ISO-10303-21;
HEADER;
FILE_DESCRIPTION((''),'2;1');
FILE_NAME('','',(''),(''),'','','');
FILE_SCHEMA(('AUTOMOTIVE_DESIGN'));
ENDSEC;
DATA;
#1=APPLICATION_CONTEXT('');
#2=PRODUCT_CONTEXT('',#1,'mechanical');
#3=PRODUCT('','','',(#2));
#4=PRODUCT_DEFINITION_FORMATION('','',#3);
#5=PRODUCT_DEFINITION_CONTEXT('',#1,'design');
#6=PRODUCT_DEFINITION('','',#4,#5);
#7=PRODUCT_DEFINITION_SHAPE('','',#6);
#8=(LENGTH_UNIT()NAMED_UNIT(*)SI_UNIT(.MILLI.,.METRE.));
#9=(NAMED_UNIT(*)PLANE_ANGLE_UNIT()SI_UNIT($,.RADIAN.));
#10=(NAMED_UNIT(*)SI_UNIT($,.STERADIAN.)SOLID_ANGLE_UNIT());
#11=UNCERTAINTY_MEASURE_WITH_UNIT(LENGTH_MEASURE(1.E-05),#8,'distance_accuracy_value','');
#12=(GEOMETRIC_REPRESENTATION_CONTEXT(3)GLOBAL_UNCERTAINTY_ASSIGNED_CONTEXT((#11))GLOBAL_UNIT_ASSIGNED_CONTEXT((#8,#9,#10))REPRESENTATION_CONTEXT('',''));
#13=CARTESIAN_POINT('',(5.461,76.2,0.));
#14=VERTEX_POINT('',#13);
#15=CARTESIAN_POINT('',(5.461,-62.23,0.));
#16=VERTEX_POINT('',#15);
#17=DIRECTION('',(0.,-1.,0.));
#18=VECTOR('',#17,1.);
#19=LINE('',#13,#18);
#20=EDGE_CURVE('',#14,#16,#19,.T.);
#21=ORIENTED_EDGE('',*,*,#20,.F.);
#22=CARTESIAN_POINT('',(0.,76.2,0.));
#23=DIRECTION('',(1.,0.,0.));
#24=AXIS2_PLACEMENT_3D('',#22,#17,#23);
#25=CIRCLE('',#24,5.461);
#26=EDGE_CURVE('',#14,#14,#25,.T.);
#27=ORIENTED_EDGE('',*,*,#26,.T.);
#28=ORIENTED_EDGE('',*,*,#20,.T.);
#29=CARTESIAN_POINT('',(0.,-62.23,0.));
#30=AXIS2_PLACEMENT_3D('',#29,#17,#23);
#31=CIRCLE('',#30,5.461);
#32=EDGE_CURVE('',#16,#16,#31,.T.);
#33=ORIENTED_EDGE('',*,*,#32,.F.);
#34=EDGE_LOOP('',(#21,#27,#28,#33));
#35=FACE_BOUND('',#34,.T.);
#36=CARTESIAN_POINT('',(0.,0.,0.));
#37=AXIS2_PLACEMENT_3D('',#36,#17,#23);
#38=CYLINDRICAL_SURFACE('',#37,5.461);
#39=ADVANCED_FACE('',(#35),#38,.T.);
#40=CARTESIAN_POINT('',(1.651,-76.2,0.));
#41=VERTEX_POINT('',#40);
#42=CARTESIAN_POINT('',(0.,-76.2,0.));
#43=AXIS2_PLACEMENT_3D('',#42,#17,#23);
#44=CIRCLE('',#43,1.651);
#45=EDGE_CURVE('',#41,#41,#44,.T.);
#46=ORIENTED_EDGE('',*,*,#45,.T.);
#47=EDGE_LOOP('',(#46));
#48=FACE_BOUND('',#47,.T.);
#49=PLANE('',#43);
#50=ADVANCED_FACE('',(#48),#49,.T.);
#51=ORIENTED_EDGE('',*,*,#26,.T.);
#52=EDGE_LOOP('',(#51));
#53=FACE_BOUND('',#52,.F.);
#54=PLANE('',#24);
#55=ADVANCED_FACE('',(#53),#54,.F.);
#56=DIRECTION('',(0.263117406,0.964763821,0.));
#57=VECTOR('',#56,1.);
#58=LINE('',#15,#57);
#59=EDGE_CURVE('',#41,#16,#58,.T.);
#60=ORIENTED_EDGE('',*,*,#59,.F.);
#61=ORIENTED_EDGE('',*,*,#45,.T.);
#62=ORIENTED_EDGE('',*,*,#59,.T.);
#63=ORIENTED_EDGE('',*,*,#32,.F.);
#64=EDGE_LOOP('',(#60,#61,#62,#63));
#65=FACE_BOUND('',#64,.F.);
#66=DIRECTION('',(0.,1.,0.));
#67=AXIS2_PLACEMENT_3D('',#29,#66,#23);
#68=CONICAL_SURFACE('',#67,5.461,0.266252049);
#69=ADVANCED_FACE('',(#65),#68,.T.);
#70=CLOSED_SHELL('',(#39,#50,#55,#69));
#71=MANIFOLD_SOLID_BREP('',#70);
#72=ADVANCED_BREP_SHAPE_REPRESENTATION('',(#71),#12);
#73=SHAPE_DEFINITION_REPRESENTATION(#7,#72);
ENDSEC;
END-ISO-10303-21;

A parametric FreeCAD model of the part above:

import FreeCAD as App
import Part
import Sketcher

V = App.Vector
Q = App.Units.Quantity


def edges_at(feature, points):
    """Names of the edges that pass closest to the given points."""
    edges = feature.Shape.Edges
    near = lambda p: min(range(len(edges)), key=lambda i: edges[i].distToShape(Part.Vertex(*p))[0])
    return sorted({f"Edge{near(p) + 1}" for p in points})

doc = App.newDocument("Part")
params = doc.addObject("Spreadsheet::Sheet", "Params")
for row, (alias, value) in enumerate([
    ("sketch1_diameter", "0.43 in"),
    ("pad1_length", "6 in"),
    ("chamfer_size", "0.15 in"),
    ("chamfer_size2", "0.55 in"),
], start=1):
    params.set(f"A{row}", alias)
    params.set(f"B{row}", "=" + value)
    params.setAlias(f"B{row}", alias)

body = doc.addObject("PartDesign::Body", "Body")

sketch1 = doc.addObject("Sketcher::SketchObject", "Sketch")
body.addObject(sketch1)
sketch1.AttachmentSupport = (doc.XZ_Plane, [""])
sketch1.MapMode = "FlatFace"
sketch1.addGeometry(Part.Circle(V(0, 0, 0), V(0, 0, 1), 5.461), False)
sketch1.addConstraint([
    Sketcher.Constraint("Coincident", 0, 3, -1, 1),
    Sketcher.Constraint("Diameter", 0, Q("0.43 in")),
])
sketch1.setExpression("Constraints[1]", "Params.sketch1_diameter")
pad1 = doc.addObject("PartDesign::Pad", "Pad")
body.addObject(pad1)
pad1.Profile = sketch1
pad1.setExpression("Length", "Params.pad1_length")
pad1.Midplane = True
doc.recompute()

chamfer = doc.addObject("PartDesign::Chamfer", "Chamfer")
body.addObject(chamfer)
chamfer.Base = (pad1, edges_at(pad1, [(-5.461, -76.2, 0)]))
chamfer.ChamferType = "Two distances"
chamfer.setExpression("Size", "Params.chamfer_size")
chamfer.setExpression("Size2", "Params.chamfer_size2")
chamfer.FlipDirection = True

doc.recompute()
